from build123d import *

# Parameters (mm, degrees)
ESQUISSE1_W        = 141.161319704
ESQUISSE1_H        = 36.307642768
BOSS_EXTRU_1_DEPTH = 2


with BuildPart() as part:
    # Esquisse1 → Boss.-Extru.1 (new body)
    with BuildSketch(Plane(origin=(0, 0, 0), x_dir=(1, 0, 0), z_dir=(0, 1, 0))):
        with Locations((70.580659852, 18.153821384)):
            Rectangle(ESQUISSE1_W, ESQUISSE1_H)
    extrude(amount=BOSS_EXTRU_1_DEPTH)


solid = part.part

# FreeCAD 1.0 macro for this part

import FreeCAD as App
import Part
import Sketcher

V = App.Vector

doc = App.newDocument("Part")
params = doc.addObject("Spreadsheet::Sheet", "Params")
for row, (alias, value) in enumerate([
    ("pad1_length", "2 mm"),
], start=1):
    params.set(f"A{row}", alias)
    params.set(f"B{row}", "=" + value)
    params.setAlias(f"B{row}", alias)

body = doc.addObject("PartDesign::Body", "Body")

sketch1 = doc.addObject("Sketcher::SketchObject", "Sketch")
body.addObject(sketch1)
sketch1.AttachmentSupport = (doc.XZ_Plane, [""])
sketch1.MapMode = "FlatFace"
sketch1.addGeometry(Part.LineSegment(V(0, -36, 0), V(0, 0, 0)), False)
sketch1.addGeometry(Part.LineSegment(V(0, 0, 0), V(141, 0, 0)), False)
sketch1.addGeometry(Part.LineSegment(V(141, 0, 0), V(141, -36, 0)), False)
sketch1.addGeometry(Part.LineSegment(V(141, -36, 0), V(0, -36, 0)), False)
sketch1.addConstraint(Sketcher.Constraint("Coincident", 0, 2, 1, 1))
sketch1.addConstraint(Sketcher.Constraint("Coincident", 1, 2, 2, 1))
sketch1.addConstraint(Sketcher.Constraint("Coincident", 2, 2, 3, 1))
sketch1.addConstraint(Sketcher.Constraint("Coincident", 3, 2, 0, 1))
sketch1.addConstraint(Sketcher.Constraint("Vertical", 0))
sketch1.addConstraint(Sketcher.Constraint("Horizontal", 1))
sketch1.addConstraint(Sketcher.Constraint("Vertical", 2))
sketch1.addConstraint(Sketcher.Constraint("Horizontal", 3))
sketch1.addConstraint(Sketcher.Constraint("Coincident", 0, 2, -1, 1))
sketch1.addConstraint(Sketcher.Constraint("DistanceX", 1, 1, 1, 2, 141.16132))
sketch1.addConstraint(Sketcher.Constraint("DistanceY", 0, 1, 0, 2, 36.307643))
pad1 = doc.addObject("PartDesign::Pad", "Pad")
body.addObject(pad1)
pad1.Profile = sketch1
pad1.setExpression("Length", "Params.pad1_length")
pad1.Reversed = True

doc.recompute()
